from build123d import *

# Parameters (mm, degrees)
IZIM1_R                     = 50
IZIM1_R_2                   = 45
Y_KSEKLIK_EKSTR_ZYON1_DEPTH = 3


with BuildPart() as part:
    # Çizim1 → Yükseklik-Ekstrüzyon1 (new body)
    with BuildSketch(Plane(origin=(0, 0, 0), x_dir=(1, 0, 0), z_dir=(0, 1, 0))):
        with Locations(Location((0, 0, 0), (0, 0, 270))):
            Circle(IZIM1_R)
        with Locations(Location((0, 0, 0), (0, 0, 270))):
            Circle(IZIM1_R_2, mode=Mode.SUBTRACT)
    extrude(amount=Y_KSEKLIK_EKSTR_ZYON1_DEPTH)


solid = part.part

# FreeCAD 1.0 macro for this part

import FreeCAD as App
import Part
import Sketcher

V = App.Vector

doc = App.newDocument("Part")
body = doc.addObject("PartDesign::Body", "Body")

# Sketch on XZ plane
sketch1 = body.newObject("Sketcher::SketchObject", "Sketch")
sketch1.AttachmentSupport = (doc.getObject("XZ_Plane"), [""])
sketch1.MapMode = "FlatFace"
sketch1.addGeometry([
    Part.Circle(V(0, 0, 0), V(0, 0, 1), 50),
    Part.Circle(V(0, 0, 0), V(0, 0, 1), 45),
], False)
sketch1.addConstraint([
    Sketcher.Constraint("Coincident", 0, 3, -1, 1),
    Sketcher.Constraint("Coincident", 1, 3, -1, 1),
    Sketcher.Constraint("Diameter", 0, 100.0),
    Sketcher.Constraint("Diameter", 1, 90.0),
])
pad1 = body.newObject("PartDesign::Pad", "Pad")
pad1.Profile = sketch1
pad1.Length = 3
pad1.Reversed = True

doc.recompute()
